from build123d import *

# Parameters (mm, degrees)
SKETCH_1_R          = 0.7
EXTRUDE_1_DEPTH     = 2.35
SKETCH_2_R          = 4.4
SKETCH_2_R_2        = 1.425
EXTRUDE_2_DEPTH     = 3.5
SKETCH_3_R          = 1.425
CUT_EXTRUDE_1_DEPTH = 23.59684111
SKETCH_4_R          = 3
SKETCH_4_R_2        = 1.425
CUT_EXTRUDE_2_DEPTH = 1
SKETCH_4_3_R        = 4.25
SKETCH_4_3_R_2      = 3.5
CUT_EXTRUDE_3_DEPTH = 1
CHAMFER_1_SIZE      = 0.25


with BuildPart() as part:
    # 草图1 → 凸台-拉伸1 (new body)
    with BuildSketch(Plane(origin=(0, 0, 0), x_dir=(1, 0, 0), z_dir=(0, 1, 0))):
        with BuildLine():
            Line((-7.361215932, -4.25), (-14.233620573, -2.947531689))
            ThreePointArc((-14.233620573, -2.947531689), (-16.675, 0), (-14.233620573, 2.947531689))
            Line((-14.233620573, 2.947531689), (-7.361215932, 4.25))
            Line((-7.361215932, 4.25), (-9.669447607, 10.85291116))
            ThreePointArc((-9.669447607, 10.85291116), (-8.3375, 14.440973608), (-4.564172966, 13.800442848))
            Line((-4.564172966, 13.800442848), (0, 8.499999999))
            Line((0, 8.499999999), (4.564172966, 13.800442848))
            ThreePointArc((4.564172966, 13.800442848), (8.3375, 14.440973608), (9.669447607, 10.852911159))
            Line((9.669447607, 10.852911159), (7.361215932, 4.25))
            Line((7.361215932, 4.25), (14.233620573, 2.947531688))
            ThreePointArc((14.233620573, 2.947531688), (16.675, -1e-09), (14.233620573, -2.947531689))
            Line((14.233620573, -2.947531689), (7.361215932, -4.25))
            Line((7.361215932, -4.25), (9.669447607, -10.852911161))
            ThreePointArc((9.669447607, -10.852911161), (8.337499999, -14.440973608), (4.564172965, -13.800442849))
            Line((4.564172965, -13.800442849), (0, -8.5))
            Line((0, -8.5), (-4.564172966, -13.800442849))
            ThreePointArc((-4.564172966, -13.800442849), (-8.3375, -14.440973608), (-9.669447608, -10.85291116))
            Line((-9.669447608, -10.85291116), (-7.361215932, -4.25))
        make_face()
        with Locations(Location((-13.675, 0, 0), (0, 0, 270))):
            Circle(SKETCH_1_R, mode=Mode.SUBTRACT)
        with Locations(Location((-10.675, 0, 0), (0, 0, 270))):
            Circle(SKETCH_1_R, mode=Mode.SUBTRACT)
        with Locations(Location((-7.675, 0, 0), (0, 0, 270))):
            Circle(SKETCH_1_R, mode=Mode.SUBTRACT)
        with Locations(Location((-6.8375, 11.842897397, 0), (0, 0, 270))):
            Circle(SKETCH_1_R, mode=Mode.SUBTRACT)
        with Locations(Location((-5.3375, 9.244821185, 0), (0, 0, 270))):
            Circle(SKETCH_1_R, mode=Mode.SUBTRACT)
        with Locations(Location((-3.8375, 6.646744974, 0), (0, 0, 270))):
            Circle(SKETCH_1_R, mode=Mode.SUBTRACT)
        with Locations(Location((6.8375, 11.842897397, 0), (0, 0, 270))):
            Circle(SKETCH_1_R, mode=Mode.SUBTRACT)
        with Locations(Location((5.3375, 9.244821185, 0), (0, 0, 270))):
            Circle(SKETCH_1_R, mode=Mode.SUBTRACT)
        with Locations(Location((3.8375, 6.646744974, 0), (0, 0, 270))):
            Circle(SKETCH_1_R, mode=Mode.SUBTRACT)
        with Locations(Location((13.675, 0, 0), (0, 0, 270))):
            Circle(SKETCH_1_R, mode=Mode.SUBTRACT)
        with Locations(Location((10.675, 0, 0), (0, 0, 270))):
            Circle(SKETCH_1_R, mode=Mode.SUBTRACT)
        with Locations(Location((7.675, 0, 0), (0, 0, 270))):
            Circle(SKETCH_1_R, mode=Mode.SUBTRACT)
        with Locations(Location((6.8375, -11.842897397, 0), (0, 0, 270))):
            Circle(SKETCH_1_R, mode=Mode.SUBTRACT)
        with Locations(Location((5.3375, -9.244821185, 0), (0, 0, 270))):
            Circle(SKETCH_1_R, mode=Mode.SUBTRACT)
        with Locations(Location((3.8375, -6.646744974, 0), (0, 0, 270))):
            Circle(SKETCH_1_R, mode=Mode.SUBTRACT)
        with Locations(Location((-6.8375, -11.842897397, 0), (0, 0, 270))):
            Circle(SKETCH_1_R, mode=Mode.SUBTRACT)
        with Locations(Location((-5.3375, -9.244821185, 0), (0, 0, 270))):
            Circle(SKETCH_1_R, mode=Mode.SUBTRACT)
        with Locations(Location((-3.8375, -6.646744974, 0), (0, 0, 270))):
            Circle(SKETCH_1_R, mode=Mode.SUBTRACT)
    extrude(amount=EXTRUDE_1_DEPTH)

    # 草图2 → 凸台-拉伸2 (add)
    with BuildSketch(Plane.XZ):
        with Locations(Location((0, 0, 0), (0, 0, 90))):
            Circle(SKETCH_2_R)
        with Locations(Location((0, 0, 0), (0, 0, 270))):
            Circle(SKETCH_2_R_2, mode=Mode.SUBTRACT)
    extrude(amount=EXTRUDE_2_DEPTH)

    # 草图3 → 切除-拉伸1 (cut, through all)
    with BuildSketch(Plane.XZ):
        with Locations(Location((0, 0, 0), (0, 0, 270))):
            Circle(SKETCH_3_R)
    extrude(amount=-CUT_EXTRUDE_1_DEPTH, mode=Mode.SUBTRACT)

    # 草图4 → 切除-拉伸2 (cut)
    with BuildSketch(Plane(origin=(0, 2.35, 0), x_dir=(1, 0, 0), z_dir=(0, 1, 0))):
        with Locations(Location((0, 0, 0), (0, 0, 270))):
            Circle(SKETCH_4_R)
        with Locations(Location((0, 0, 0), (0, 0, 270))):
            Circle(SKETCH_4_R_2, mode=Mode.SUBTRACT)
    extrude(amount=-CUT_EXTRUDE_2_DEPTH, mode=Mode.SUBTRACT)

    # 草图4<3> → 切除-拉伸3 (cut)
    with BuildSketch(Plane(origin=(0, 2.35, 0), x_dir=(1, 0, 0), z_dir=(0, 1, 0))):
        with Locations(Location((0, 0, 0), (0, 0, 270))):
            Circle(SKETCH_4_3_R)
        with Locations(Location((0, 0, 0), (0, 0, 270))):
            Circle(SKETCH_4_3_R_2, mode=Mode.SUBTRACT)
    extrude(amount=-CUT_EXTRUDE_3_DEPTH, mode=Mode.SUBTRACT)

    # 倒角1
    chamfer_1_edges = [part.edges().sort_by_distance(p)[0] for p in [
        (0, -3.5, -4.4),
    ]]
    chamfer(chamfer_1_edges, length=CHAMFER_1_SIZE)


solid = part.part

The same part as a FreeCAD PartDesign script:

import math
import FreeCAD as App
import Part
import Sketcher
from FreeCAD import Vector


def edges_at(feature, points):
    """Names of the edges that pass closest to the given points."""
    edges = feature.Shape.Edges
    near = lambda p: min(range(len(edges)), key=lambda i: edges[i].distToShape(Part.Vertex(*p))[0])
    return sorted({f"Edge{near(p) + 1}" for p in points})

doc = App.newDocument("Part")
body = doc.addObject("PartDesign::Body", "Body")

sketch1 = body.newObject("Sketcher::SketchObject", "Sketch")
sketch1.AttachmentSupport = (doc.getObject("XZ_Plane"), [""])
sketch1.MapMode = "FlatFace"
sketch1.addGeometry(Part.LineSegment(Vector(-14.233621, 2.947532, 0), Vector(-7.361216, 4.25, 0)), False)
sketch1.addGeometry(Part.LineSegment(Vector(-7.361216, 4.25, 0), Vector(-9.669448, 10.852911, 0)), False)
sketch1.addGeometry(Part.ArcOfCircle(Part.Circle(Vector(-6.8375, 11.842897, 0), Vector(0, 0, 1), 3), math.radians(40.731503), math.radians(199.268497)), False)
sketch1.addGeometry(Part.LineSegment(Vector(-4.564173, 13.800443, 0), Vector(0, 8.5, 0)), False)
sketch1.addGeometry(Part.LineSegment(Vector(0, 8.5, 0), Vector(4.564173, 13.800443, 0)), False)
sketch1.addGeometry(Part.ArcOfCircle(Part.Circle(Vector(6.8375, 11.842897, 0), Vector(0, 0, 1), 3), math.radians(-19.268497), math.radians(139.268497)), False)
sketch1.addGeometry(Part.LineSegment(Vector(9.669448, 10.852911, 0), Vector(7.361216, 4.25, 0)), False)
sketch1.addGeometry(Part.LineSegment(Vector(7.361216, 4.25, 0), Vector(14.233621, 2.947532, 0)), False)
sketch1.addGeometry(Part.ArcOfCircle(Part.Circle(Vector(13.675, 0, 0), Vector(0, 0, 1), 3), math.radians(-79.268497), math.radians(79.268497)), False)
sketch1.addGeometry(Part.LineSegment(Vector(14.233621, -2.947532, 0), Vector(7.361216, -4.25, 0)), False)
sketch1.addGeometry(Part.LineSegment(Vector(7.361216, -4.25, 0), Vector(9.669448, -10.852911, 0)), False)
sketch1.addGeometry(Part.ArcOfCircle(Part.Circle(Vector(6.8375, -11.842897, 0), Vector(0, 0, 1), 3), math.radians(-139.268497), math.radians(19.268497)), False)
sketch1.addGeometry(Part.LineSegment(Vector(4.564173, -13.800443, 0), Vector(0, -8.5, 0)), False)
sketch1.addGeometry(Part.LineSegment(Vector(0, -8.5, 0), Vector(-4.564173, -13.800443, 0)), False)
sketch1.addGeometry(Part.ArcOfCircle(Part.Circle(Vector(-6.8375, -11.842897, 0), Vector(0, 0, 1), 3), math.radians(160.731503), math.radians(319.268497)), False)
sketch1.addGeometry(Part.LineSegment(Vector(-9.669448, -10.852911, 0), Vector(-7.361216, -4.25, 0)), False)
sketch1.addGeometry(Part.LineSegment(Vector(-7.361216, -4.25, 0), Vector(-14.233621, -2.947532, 0)), False)
sketch1.addGeometry(Part.ArcOfCircle(Part.Circle(Vector(-13.675, 0, 0), Vector(0, 0, 1), 3), math.radians(100.731503), math.radians(259.268497)), False)
sketch1.addGeometry(Part.Circle(Vector(6.8375, 11.842897, 0), Vector(0, 0, 1), 0.7), False)
sketch1.addGeometry(Part.Circle(Vector(5.3375, 9.244821, 0), Vector(0, 0, 1), 0.7), False)
sketch1.addGeometry(Part.Circle(Vector(3.8375, 6.646745, 0), Vector(0, 0, 1), 0.7), False)
sketch1.addGeometry(Part.Circle(Vector(-6.8375, 11.842897, 0), Vector(0, 0, 1), 0.7), False)
sketch1.addGeometry(Part.Circle(Vector(-5.3375, 9.244821, 0), Vector(0, 0, 1), 0.7), False)
sketch1.addGeometry(Part.Circle(Vector(-3.8375, 6.646745, 0), Vector(0, 0, 1), 0.7), False)
sketch1.addGeometry(Part.Circle(Vector(13.675, 0, 0), Vector(0, 0, 1), 0.7), False)
sketch1.addGeometry(Part.Circle(Vector(10.675, 0, 0), Vector(0, 0, 1), 0.7), False)
sketch1.addGeometry(Part.Circle(Vector(7.675, 0, 0), Vector(0, 0, 1), 0.7), False)
sketch1.addGeometry(Part.Circle(Vector(3.8375, -6.646745, 0), Vector(0, 0, 1), 0.7), False)
sketch1.addGeometry(Part.Circle(Vector(5.3375, -9.244821, 0), Vector(0, 0, 1), 0.7), False)
sketch1.addGeometry(Part.Circle(Vector(6.8375, -11.842897, 0), Vector(0, 0, 1), 0.7), False)
sketch1.addGeometry(Part.Circle(Vector(-7.675, 0, 0), Vector(0, 0, 1), 0.7), False)
sketch1.addGeometry(Part.Circle(Vector(-10.675, 0, 0), Vector(0, 0, 1), 0.7), False)
sketch1.addGeometry(Part.Circle(Vector(-13.675, 0, 0), Vector(0, 0, 1), 0.7), False)
sketch1.addGeometry(Part.Circle(Vector(-3.8375, -6.646745, 0), Vector(0, 0, 1), 0.7), False)
sketch1.addGeometry(Part.Circle(Vector(-5.3375, -9.244821, 0), Vector(0, 0, 1), 0.7), False)
sketch1.addGeometry(Part.Circle(Vector(-6.8375, -11.842897, 0), Vector(0, 0, 1), 0.7), False)
sketch1.addConstraint(Sketcher.Constraint("Coincident", 0, 2, 1, 1))
sketch1.addConstraint(Sketcher.Constraint("Tangent", 1, 2, 2, 2))
sketch1.addConstraint(Sketcher.Constraint("Tangent", 2, 1, 3, 1))
sketch1.addConstraint(Sketcher.Constraint("Coincident", 3, 2, 4, 1))
sketch1.addConstraint(Sketcher.Constraint("Tangent", 4, 2, 5, 2))
sketch1.addConstraint(Sketcher.Constraint("Tangent", 5, 1, 6, 1))
sketch1.addConstraint(Sketcher.Constraint("Coincident", 6, 2, 7, 1))
sketch1.addConstraint(Sketcher.Constraint("Tangent", 7, 2, 8, 2))
sketch1.addConstraint(Sketcher.Constraint("Tangent", 8, 1, 9, 1))
sketch1.addConstraint(Sketcher.Constraint("Coincident", 9, 2, 10, 1))
sketch1.addConstraint(Sketcher.Constraint("Tangent", 10, 2, 11, 2))
sketch1.addConstraint(Sketcher.Constraint("Tangent", 11, 1, 12, 1))
sketch1.addConstraint(Sketcher.Constraint("Coincident", 12, 2, 13, 1))
sketch1.addConstraint(Sketcher.Constraint("Tangent", 13, 2, 14, 2))
sketch1.addConstraint(Sketcher.Constraint("Tangent", 14, 1, 15, 1))
sketch1.addConstraint(Sketcher.Constraint("Coincident", 15, 2, 16, 1))
sketch1.addConstraint(Sketcher.Constraint("Tangent", 16, 2, 17, 2))
sketch1.addConstraint(Sketcher.Constraint("Tangent", 17, 1, 0, 1))
sketch1.addConstraint(Sketcher.Constraint("Coincident", 18, 3, 5, 3))
sketch1.addConstraint(Sketcher.Constraint("Coincident", 21, 3, 2, 3))
sketch1.addConstraint(Sketcher.Constraint("Coincident", 24, 3, 8, 3))
sketch1.addConstraint(Sketcher.Constraint("Coincident", 29, 3, 11, 3))
sketch1.addConstraint(Sketcher.Constraint("Coincident", 32, 3, 17, 3))
sketch1.addConstraint(Sketcher.Constraint("Coincident", 35, 3, 14, 3))
sketch1.addConstraint(Sketcher.Constraint("Equal", 2, 5))
sketch1.addConstraint(Sketcher.Constraint("Equal", 5, 8))
sketch1.addConstraint(Sketcher.Constraint("Equal", 8, 11))
sketch1.addConstraint(Sketcher.Constraint("Equal", 11, 14))
sketch1.addConstraint(Sketcher.Constraint("Equal", 14, 17))
sketch1.addConstraint(Sketcher.Constraint("Equal", 18, 19))
sketch1.addConstraint(Sketcher.Constraint("Equal", 19, 20))
sketch1.addConstraint(Sketcher.Constraint("Equal", 20, 21))
sketch1.addConstraint(Sketcher.Constraint("Equal", 21, 22))
sketch1.addConstraint(Sketcher.Constraint("Equal", 22, 23))
sketch1.addConstraint(Sketcher.Constraint("Equal", 23, 24))
sketch1.addConstraint(Sketcher.Constraint("Equal", 24, 25))
sketch1.addConstraint(Sketcher.Constraint("Equal", 25, 26))
sketch1.addConstraint(Sketcher.Constraint("Equal", 26, 27))
sketch1.addConstraint(Sketcher.Constraint("Equal", 27, 28))
sketch1.addConstraint(Sketcher.Constraint("Equal", 28, 29))
sketch1.addConstraint(Sketcher.Constraint("Equal", 29, 30))
sketch1.addConstraint(Sketcher.Constraint("Equal", 30, 31))
sketch1.addConstraint(Sketcher.Constraint("Equal", 31, 32))
sketch1.addConstraint(Sketcher.Constraint("Equal", 32, 33))
sketch1.addConstraint(Sketcher.Constraint("Equal", 33, 34))
sketch1.addConstraint(Sketcher.Constraint("Equal", 34, 35))
sketch1.addConstraint(Sketcher.Constraint("Symmetric", 2, 3, 11, 3, -1, 1))
sketch1.addConstraint(Sketcher.Constraint("Symmetric", 5, 3, 14, 3, -1, 1))
sketch1.addConstraint(Sketcher.Constraint("Symmetric", 8, 3, 17, 3, -1, 1))
sketch1.addConstraint(Sketcher.Constraint("Symmetric", 23, 3, 27, 3, -1, 1))
sketch1.addConstraint(Sketcher.Constraint("Symmetric", 22, 3, 28, 3, -1, 1))
sketch1.addConstraint(Sketcher.Constraint("Symmetric", 26, 3, 30, 3, -1, 1))
sketch1.addConstraint(Sketcher.Constraint("Symmetric", 25, 3, 31, 3, -1, 1))
sketch1.addConstraint(Sketcher.Constraint("Symmetric", 20, 3, 33, 3, -1, 1))
sketch1.addConstraint(Sketcher.Constraint("Symmetric", 19, 3, 34, 3, -1, 1))
sketch1.addConstraint(Sketcher.Constraint("Symmetric", 0, 2, 9, 2, -1, 1))
sketch1.addConstraint(Sketcher.Constraint("Symmetric", 3, 2, 12, 2, -1, 1))
sketch1.addConstraint(Sketcher.Constraint("Symmetric", 6, 2, 15, 2, -1, 1))
sketch1.addConstraint(Sketcher.Constraint("Symmetric", 2, 3, 5, 3, -2))
sketch1.addConstraint(Sketcher.Constraint("Symmetric", 19, 3, 22, 3, -2))
sketch1.addConstraint(Sketcher.Constraint("Symmetric", 20, 3, 23, 3, -2))
sketch1.addConstraint(Sketcher.Constraint("Symmetric", 0, 2, 6, 2, -2))
sketch1.addConstraint(Sketcher.Constraint("PointOnObject", 8, 3, -1))
sketch1.addConstraint(Sketcher.Constraint("PointOnObject", 25, 3, -1))
sketch1.addConstraint(Sketcher.Constraint("PointOnObject", 26, 3, -1))
sketch1.addConstraint(Sketcher.Constraint("PointOnObject", 3, 2, -2))
sketch1.addConstraint(Sketcher.Constraint("Equal", 0, 1))
sketch1.addConstraint(Sketcher.Constraint("Equal", 1, 3))
sketch1.addConstraint(Sketcher.Constraint("Radius", 2, 3.0))
sketch1.addConstraint(Sketcher.Constraint("Diameter", 18, 1.4))
sketch1.addConstraint(Sketcher.Constraint("DistanceX", 20, 3, 5, 3, 3.0))
sketch1.addConstraint(Sketcher.Constraint("DistanceX", 25, 3, 8, 3, 3.0))
sketch1.addConstraint(Sketcher.Constraint("DistanceX", 26, 3, 25, 3, 3.0))
sketch1.addConstraint(Sketcher.Constraint("DistanceY", -1, 1, 3, 2, 8.5))
sketch1.addConstraint(Sketcher.Constraint("DistanceX", 19, 3, 5, 3, 1.5))
sketch1.addConstraint(Sketcher.Constraint("DistanceY", -1, 1, 0, 2, 4.25))
sketch1.addConstraint(Sketcher.Constraint("DistanceX", 17, 3, 8, 3, 27.35))
sketch1.addConstraint(Sketcher.Constraint("DistanceX", 2, 3, 5, 3, 13.675))
sketch1.addConstraint(Sketcher.Constraint("DistanceY", -1, 1, 19, 3, 9.244821))
sketch1.addConstraint(Sketcher.Constraint("DistanceY", -1, 1, 20, 3, 6.646745))
pad1 = body.newObject("PartDesign::Pad", "Pad")
pad1.Profile = sketch1
pad1.Length = 2.35
pad1.Reversed = True

sketch2 = body.newObject("Sketcher::SketchObject", "Sketch001")
sketch2.AttachmentSupport = (doc.getObject("XZ_Plane"), [""])
sketch2.MapMode = "FlatFace"
sketch2.addGeometry(Part.Circle(Vector(0, 0, 0), Vector(0, 0, 1), 4.4), False)
sketch2.addGeometry(Part.Circle(Vector(0, 0, 0), Vector(0, 0, 1), 1.425), False)
sketch2.addConstraint(Sketcher.Constraint("Coincident", 0, 3, -1, 1))
sketch2.addConstraint(Sketcher.Constraint("Coincident", 1, 3, -1, 1))
sketch2.addConstraint(Sketcher.Constraint("Diameter", 0, 8.8))
sketch2.addConstraint(Sketcher.Constraint("Diameter", 1, 2.85))
pad2 = body.newObject("PartDesign::Pad", "Pad001")
pad2.Profile = sketch2
pad2.Length = 3.5

sketch3 = body.newObject("Sketcher::SketchObject", "Sketch002")
sketch3.AttachmentSupport = (doc.getObject("XZ_Plane"), [""])
sketch3.MapMode = "FlatFace"
sketch3.addGeometry(Part.Circle(Vector(0, 0, 0), Vector(0, 0, 1), 1.425), False)
sketch3.addConstraint(Sketcher.Constraint("Coincident", 0, 3, -1, 1))
sketch3.addConstraint(Sketcher.Constraint("Diameter", 0, 2.85))
pocket1 = body.newObject("PartDesign::Pocket", "Pocket")
pocket1.Profile = sketch3
pocket1.Type = "ThroughAll"

sketch4 = body.newObject("Sketcher::SketchObject", "Sketch003")
sketch4.AttachmentSupport = (doc.getObject("XZ_Plane"), [""])
sketch4.MapMode = "FlatFace"
sketch4.AttachmentOffset = App.Placement(Vector(0, 0, -2.35), App.Rotation())
sketch4.addGeometry(Part.Circle(Vector(0, 0, 0), Vector(0, 0, 1), 3), False)
sketch4.addGeometry(Part.Circle(Vector(0, 0, 0), Vector(0, 0, 1), 1.425), False)
sketch4.addConstraint(Sketcher.Constraint("Coincident", 0, 3, -1, 1))
sketch4.addConstraint(Sketcher.Constraint("Coincident", 1, 3, -1, 1))
sketch4.addConstraint(Sketcher.Constraint("Diameter", 0, 6.0))
sketch4.addConstraint(Sketcher.Constraint("Diameter", 1, 2.85))
pocket2 = body.newObject("PartDesign::Pocket", "Pocket001")
pocket2.Profile = sketch4
pocket2.Length = 1
pocket2.Reversed = True

sketch5 = body.newObject("Sketcher::SketchObject", "Sketch004")
sketch5.AttachmentSupport = (doc.getObject("XZ_Plane"), [""])
sketch5.MapMode = "FlatFace"
sketch5.AttachmentOffset = App.Placement(Vector(0, 0, -2.35), App.Rotation())
sketch5.addGeometry(Part.Circle(Vector(0, 0, 0), Vector(0, 0, 1), 4.25), False)
sketch5.addGeometry(Part.Circle(Vector(0, 0, 0), Vector(0, 0, 1), 3.5), False)
sketch5.addConstraint(Sketcher.Constraint("Coincident", 0, 3, -1, 1))
sketch5.addConstraint(Sketcher.Constraint("Coincident", 1, 3, -1, 1))
sketch5.addConstraint(Sketcher.Constraint("Diameter", 1, 7.0))
sketch5.addConstraint(Sketcher.Constraint("Diameter", 0, 8.5))
pocket3 = body.newObject("PartDesign::Pocket", "Pocket002")
pocket3.Profile = sketch5
pocket3.Length = 1
pocket3.Reversed = True
doc.recompute()

chamfer = body.newObject("PartDesign::Chamfer", "Chamfer")
chamfer.Base = (pocket3, edges_at(pocket3, [(0, -3.5, -4.4)]))
chamfer.Size = 0.25

doc.recompute()
